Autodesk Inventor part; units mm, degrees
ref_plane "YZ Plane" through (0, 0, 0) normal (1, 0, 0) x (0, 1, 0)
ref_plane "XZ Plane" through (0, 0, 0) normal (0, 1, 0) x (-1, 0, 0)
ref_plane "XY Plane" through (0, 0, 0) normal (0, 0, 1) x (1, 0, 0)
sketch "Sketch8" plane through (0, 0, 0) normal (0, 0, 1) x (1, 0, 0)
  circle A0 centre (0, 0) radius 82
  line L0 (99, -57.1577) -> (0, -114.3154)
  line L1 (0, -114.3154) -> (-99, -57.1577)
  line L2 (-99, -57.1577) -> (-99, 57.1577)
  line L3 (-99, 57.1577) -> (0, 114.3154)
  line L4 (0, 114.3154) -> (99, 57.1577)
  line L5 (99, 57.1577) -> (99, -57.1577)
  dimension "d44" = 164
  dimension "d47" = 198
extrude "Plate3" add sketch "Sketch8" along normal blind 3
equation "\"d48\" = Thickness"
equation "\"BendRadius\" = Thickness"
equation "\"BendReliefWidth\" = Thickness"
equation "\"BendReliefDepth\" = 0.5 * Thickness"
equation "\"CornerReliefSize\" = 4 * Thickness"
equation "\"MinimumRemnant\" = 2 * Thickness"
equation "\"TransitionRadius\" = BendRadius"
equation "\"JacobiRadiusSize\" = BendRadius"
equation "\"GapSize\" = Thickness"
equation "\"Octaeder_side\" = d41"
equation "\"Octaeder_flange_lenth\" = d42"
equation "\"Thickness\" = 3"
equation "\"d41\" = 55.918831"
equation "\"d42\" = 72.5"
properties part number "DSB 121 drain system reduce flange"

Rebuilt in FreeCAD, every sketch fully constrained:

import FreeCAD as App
import Part
import Sketcher

V = App.Vector
Q = App.Units.Quantity


def add_polygon(sketch, points):
    """Adds a closed chain of lines whose ends are joined by coincident constraints."""
    first, n = sketch.GeometryCount, len(points)
    for a, b in zip(points, points[1:] + points[:1]):
        sketch.addGeometry(Part.LineSegment(App.Vector(*a, 0), App.Vector(*b, 0)), False)
    for i in range(n):
        sketch.addConstraint(Sketcher.Constraint("Coincident", first + i, 2, first + (i + 1) % n, 1))

doc = App.newDocument("Part")
params = doc.addObject("Spreadsheet::Sheet", "Params")
for row, (alias, value) in enumerate([
    ("sketch1_diameter", "164 mm"),
    ("pad1_length", "3 mm"),
], start=1):
    params.set(f"A{row}", alias)
    params.set(f"B{row}", "=" + value)
    params.setAlias(f"B{row}", alias)

body = doc.addObject("PartDesign::Body", "Body")

sketch1 = body.newObject("Sketcher::SketchObject", "Sketch")
sketch1.AttachmentSupport = (doc.getObject("XY_Plane"), [""])
sketch1.MapMode = "FlatFace"
add_polygon(sketch1, [(0, -114), (99, -57), (99, 57), (0, 114), (-99, 57), (-99, -57)])
sketch1.addGeometry(Part.Circle(V(0, 0, 0), V(0, 0, 1), 82), False)
sketch1.addConstraint(Sketcher.Constraint("Vertical", 1))
sketch1.addConstraint(Sketcher.Constraint("Vertical", 4))
sketch1.addConstraint(Sketcher.Constraint("Coincident", 6, 3, -1, 1))
sketch1.addConstraint(Sketcher.Constraint("Symmetric", 0, 2, 3, 2, -1, 1))
sketch1.addConstraint(Sketcher.Constraint("Symmetric", 2, 2, 5, 2, -1, 1))
sketch1.addConstraint(Sketcher.Constraint("PointOnObject", 2, 2, -2))
sketch1.addConstraint(Sketcher.Constraint("Parallel", 2, 5))
sketch1.addConstraint(Sketcher.Constraint("Horizontal", 1, 2, 3, 2))
sketch1.addConstraint(Sketcher.Constraint("Diameter", 6, Q("164 mm")))
sketch1.addConstraint(Sketcher.Constraint("DistanceX", 3, 2, 1, 2, Q("198 mm")))
sketch1.addConstraint(Sketcher.Constraint("Angle", 0, Q("30 deg")))
sketch1.addConstraint(Sketcher.Constraint("DistanceY", 1, 1, 1, 2, Q("114.3154 mm")))
sketch1.setExpression("Constraints[14]", "Params.sketch1_diameter")
pad1 = body.newObject("PartDesign::Pad", "Pad")
pad1.Profile = sketch1
pad1.setExpression("Length", "Params.pad1_length")

doc.recompute()
